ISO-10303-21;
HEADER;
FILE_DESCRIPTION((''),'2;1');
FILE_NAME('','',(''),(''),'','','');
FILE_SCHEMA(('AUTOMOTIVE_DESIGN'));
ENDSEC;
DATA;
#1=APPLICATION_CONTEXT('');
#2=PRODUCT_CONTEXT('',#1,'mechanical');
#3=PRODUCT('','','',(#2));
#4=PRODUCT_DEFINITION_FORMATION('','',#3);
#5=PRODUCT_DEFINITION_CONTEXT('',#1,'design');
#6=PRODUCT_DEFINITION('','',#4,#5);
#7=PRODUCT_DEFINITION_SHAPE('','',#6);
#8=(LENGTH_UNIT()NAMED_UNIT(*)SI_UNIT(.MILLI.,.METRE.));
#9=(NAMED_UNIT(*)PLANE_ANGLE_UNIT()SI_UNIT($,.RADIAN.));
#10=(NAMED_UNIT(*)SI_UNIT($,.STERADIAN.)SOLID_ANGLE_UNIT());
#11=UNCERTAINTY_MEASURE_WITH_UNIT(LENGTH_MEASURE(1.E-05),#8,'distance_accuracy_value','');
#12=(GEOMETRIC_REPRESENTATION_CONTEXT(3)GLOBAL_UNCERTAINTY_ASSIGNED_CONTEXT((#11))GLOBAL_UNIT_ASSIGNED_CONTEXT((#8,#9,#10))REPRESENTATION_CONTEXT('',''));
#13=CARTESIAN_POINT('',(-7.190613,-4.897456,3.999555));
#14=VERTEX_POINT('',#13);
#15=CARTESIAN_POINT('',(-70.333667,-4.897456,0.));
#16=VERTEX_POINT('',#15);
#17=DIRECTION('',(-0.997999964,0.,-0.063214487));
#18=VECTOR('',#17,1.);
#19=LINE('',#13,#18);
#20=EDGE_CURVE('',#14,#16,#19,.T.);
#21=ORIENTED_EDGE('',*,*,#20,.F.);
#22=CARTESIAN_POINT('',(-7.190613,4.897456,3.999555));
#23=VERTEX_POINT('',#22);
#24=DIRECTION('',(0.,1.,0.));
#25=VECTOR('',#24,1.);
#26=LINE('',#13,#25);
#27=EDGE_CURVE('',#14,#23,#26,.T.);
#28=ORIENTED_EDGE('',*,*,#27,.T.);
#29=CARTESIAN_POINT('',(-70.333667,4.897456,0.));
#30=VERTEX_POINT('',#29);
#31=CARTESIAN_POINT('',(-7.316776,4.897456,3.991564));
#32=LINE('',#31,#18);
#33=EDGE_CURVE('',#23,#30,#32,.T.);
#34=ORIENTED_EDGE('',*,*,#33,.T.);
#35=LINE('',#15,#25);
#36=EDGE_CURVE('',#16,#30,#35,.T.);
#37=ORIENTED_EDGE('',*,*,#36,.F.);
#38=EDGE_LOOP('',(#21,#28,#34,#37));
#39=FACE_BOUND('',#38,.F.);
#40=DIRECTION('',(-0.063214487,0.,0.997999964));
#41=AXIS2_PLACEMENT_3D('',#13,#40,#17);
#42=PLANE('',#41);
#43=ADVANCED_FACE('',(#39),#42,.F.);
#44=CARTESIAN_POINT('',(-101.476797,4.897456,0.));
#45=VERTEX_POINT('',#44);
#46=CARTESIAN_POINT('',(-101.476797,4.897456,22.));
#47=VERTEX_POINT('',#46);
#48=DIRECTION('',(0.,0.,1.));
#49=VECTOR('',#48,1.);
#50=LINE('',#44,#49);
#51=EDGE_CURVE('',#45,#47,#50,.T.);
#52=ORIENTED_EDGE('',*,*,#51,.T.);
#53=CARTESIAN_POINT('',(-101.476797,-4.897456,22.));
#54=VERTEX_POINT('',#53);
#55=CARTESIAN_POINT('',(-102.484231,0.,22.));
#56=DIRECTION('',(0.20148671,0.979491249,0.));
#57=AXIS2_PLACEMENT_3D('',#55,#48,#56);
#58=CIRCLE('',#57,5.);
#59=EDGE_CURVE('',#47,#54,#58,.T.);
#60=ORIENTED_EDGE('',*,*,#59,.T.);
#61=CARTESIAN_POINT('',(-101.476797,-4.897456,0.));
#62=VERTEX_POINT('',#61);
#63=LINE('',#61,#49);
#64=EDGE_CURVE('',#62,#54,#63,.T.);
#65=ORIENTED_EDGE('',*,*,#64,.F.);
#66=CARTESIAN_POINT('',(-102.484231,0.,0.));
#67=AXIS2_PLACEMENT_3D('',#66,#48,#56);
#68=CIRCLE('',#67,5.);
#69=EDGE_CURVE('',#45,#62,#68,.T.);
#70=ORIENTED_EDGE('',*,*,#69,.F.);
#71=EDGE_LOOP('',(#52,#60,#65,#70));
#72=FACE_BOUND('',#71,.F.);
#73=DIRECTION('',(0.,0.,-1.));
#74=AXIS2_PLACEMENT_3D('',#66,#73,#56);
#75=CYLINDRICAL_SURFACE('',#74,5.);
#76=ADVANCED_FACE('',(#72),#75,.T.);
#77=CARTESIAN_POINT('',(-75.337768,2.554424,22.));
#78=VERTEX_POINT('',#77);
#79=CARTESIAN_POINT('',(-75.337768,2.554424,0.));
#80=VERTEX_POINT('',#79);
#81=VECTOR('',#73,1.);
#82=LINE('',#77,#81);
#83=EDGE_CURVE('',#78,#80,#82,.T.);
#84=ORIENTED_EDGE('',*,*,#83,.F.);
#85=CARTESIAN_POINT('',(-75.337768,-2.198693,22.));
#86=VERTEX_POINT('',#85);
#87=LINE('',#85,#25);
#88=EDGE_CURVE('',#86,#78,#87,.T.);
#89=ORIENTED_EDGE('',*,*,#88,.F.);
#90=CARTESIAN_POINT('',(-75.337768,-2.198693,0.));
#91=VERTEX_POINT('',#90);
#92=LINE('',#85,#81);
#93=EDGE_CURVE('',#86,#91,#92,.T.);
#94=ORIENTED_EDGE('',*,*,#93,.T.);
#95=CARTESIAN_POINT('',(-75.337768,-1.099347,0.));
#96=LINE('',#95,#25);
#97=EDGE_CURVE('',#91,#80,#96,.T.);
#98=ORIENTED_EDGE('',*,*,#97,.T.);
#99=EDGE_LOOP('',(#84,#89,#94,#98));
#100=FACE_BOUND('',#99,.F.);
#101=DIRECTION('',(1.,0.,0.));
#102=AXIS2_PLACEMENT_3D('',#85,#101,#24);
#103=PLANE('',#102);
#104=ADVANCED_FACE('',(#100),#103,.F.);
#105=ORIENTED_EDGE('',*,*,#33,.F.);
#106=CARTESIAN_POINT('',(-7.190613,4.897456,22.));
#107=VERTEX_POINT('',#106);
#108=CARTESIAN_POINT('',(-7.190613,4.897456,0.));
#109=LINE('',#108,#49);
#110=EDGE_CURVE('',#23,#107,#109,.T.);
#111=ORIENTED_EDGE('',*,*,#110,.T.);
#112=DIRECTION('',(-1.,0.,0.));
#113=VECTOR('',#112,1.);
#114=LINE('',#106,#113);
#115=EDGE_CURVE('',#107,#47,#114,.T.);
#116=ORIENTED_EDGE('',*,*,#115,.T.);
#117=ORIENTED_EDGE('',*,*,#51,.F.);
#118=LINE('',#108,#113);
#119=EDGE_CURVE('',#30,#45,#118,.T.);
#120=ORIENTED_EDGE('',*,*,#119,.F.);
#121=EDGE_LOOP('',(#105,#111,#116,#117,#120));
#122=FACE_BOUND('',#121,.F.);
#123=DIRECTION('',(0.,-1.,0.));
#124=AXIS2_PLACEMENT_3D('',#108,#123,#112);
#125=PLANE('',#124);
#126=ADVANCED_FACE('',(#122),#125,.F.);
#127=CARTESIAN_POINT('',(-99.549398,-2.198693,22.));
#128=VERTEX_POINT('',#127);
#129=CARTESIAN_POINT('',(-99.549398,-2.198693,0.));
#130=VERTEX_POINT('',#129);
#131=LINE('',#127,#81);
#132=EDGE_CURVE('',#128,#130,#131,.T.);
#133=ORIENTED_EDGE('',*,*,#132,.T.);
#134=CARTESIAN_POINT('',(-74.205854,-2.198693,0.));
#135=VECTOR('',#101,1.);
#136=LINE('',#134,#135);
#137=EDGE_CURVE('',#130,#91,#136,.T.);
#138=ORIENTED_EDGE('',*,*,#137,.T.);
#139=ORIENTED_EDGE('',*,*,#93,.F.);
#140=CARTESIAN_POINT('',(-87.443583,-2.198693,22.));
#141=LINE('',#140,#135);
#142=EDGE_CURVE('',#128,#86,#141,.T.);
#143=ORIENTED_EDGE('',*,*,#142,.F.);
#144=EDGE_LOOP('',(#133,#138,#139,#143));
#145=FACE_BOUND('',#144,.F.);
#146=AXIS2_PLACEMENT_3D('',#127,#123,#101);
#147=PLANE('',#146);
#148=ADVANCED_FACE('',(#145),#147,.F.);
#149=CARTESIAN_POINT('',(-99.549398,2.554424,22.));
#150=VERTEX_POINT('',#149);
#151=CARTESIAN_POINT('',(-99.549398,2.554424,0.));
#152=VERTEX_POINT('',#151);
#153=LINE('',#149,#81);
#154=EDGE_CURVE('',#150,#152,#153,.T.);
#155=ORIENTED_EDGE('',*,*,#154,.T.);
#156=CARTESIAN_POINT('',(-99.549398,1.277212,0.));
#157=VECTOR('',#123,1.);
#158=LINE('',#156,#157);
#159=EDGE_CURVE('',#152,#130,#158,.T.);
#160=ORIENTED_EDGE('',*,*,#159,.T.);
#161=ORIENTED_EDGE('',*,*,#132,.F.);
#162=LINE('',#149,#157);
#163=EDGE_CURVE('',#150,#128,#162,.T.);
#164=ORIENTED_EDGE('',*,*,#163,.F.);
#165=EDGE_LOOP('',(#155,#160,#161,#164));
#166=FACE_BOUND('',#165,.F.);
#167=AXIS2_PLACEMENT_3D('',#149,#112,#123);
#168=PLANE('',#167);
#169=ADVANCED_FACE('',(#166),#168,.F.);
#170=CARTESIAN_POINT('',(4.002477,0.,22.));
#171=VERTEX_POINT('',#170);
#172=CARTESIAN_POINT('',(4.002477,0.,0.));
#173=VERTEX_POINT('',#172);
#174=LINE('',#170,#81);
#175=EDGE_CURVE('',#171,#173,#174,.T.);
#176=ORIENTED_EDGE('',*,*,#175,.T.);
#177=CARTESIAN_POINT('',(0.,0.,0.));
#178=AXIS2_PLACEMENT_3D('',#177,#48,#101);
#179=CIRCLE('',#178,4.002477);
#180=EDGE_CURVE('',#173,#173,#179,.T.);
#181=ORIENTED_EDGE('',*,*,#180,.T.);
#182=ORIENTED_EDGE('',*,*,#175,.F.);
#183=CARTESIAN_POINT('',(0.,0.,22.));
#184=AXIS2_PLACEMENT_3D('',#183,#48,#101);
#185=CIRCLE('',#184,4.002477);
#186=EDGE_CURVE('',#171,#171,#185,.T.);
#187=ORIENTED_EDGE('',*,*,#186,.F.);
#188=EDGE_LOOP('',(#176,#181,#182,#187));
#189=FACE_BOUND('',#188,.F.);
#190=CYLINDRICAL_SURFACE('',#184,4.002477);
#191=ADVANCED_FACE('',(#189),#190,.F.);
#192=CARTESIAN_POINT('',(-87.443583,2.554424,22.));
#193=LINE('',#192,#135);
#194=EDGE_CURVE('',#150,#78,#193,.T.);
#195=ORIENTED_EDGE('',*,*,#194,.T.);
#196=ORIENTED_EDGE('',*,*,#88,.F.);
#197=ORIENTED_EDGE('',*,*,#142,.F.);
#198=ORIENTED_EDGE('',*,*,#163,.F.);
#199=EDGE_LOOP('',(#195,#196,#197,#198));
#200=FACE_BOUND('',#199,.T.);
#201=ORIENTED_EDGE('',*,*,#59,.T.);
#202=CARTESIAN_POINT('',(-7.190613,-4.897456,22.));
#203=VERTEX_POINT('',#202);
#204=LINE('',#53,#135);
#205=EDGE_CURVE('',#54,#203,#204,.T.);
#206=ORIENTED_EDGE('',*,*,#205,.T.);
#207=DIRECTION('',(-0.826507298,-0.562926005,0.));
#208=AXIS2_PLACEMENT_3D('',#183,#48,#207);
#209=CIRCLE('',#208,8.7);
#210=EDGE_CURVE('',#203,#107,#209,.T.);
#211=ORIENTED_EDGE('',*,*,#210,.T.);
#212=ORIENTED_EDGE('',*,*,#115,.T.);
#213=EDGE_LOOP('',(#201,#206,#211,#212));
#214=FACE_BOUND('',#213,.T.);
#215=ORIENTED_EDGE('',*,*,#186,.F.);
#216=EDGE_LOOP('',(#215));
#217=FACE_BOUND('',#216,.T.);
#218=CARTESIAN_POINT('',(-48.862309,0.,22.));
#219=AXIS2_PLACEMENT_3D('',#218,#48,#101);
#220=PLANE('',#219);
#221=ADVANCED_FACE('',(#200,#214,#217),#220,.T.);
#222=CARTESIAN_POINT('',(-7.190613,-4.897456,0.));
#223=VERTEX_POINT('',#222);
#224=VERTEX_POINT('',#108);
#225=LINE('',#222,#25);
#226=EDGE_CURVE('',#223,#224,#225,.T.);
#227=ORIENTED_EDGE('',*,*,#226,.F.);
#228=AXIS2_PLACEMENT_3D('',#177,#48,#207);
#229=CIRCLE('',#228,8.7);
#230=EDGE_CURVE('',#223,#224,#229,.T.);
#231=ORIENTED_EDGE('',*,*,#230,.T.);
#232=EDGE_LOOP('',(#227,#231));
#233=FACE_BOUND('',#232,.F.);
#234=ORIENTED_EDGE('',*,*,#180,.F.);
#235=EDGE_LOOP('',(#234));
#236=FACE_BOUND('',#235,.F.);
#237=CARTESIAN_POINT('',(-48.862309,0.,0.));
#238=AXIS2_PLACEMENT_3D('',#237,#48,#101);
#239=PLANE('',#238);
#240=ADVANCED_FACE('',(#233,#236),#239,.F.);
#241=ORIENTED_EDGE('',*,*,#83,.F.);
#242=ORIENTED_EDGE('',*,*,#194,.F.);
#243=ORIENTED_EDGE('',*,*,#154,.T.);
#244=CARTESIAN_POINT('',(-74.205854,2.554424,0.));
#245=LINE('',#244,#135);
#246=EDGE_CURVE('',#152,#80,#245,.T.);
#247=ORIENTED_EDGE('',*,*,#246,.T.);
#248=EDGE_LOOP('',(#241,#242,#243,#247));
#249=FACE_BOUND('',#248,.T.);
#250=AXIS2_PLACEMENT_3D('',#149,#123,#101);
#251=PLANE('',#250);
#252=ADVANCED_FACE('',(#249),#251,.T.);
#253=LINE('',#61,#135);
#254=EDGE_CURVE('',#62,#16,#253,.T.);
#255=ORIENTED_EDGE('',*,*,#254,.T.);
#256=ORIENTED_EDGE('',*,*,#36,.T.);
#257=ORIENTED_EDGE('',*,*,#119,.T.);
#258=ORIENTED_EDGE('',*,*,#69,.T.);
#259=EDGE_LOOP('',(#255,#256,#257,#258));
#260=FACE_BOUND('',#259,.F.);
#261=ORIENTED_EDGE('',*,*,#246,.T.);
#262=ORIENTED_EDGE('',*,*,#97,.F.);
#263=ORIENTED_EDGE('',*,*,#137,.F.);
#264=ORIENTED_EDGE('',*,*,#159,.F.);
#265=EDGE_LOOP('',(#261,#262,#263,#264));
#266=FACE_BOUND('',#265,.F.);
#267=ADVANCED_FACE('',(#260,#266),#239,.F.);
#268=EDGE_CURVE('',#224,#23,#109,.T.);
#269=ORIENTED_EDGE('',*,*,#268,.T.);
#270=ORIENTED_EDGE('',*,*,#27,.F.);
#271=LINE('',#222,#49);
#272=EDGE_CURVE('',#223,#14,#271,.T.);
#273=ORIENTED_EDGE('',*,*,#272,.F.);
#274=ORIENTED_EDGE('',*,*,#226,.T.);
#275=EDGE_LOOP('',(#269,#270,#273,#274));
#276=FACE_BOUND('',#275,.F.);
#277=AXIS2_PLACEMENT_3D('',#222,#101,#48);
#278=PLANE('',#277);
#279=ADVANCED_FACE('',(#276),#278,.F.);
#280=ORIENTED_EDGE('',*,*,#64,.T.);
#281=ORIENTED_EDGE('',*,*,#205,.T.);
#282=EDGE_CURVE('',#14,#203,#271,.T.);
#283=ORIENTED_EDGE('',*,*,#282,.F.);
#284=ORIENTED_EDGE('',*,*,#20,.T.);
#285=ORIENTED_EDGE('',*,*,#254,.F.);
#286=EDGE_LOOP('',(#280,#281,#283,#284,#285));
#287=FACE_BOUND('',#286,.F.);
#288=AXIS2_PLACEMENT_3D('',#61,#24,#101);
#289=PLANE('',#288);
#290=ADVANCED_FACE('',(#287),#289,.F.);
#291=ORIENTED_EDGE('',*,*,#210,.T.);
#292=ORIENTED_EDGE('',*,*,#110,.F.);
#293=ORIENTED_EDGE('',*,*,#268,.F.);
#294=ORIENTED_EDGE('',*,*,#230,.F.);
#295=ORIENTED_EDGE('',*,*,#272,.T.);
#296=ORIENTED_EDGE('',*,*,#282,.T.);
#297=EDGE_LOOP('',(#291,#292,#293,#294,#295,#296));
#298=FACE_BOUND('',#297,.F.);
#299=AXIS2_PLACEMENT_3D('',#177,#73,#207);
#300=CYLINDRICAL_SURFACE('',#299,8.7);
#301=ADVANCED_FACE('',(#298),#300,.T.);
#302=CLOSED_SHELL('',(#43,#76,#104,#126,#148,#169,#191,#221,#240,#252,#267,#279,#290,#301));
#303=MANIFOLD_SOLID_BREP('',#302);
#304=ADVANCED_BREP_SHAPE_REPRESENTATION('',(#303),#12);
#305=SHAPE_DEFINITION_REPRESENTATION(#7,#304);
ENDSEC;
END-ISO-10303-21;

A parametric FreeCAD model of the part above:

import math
import FreeCAD as App
import Part
import Sketcher

doc = App.newDocument("Part")
body = doc.addObject("PartDesign::Body", "Body")

# Sketch on XY plane
sketch1 = body.newObject("Sketcher::SketchObject", "Sketch")
sketch1.AttachmentSupport = (doc.getObject("XY_Plane"), [""])
sketch1.MapMode = "FlatFace"
sketch1.addGeometry([
    Part.LineSegment(App.Vector(-101, -5, 0), App.Vector(-7, -5, 0)),
    Part.ArcOfCircle(Part.Circle(App.Vector(0, 0, 0), App.Vector(0, 0, 1), 9), math.radians(-146), math.radians(146)),
    Part.LineSegment(App.Vector(-7, 5, 0), App.Vector(-101, 5, 0)),
    Part.ArcOfCircle(Part.Circle(App.Vector(-102, 0, 0), App.Vector(0, 0, 1), 5), math.radians(78), math.radians(282)),
], False)
sketch1.addConstraint([
    Sketcher.Constraint("Coincident", 0, 2, 1, 1),
    Sketcher.Constraint("Coincident", 1, 2, 2, 1),
    Sketcher.Constraint("Coincident", 2, 2, 3, 1),
    Sketcher.Constraint("Coincident", 3, 2, 0, 1),
    Sketcher.Constraint("Horizontal", 0),
    Sketcher.Constraint("Horizontal", 2),
    Sketcher.Constraint("Coincident", 1, 3, -1, 1),
    Sketcher.Constraint("Symmetric", 2, 2, 3, 2, -1),
    Sketcher.Constraint("Radius", 3, 5.0),
    Sketcher.Constraint("Radius", 1, 8.7),
    Sketcher.Constraint("DistanceX", 0, 1, 0, 2, 94.286184),
    Sketcher.Constraint("DistanceX", 3, 3, -1, 1, 102.484231),
])
pad1 = body.newObject("PartDesign::Pad", "Pad")
pad1.Profile = sketch1
pad1.Length = 22

# Sketch on XZ plane
sketch2 = body.newObject("Sketcher::SketchObject", "Sketch001")
sketch2.AttachmentSupport = (doc.getObject("XZ_Plane"), [""])
sketch2.MapMode = "FlatFace"
sketch2.AttachmentOffset = App.Placement(App.Vector(0, 0, 4.897456), App.Rotation())
sketch2.addGeometry([
    Part.LineSegment(App.Vector(-7.2, 4, 0), App.Vector(-70.3, 0, 0)),
    Part.LineSegment(App.Vector(-70.3, 0, 0), App.Vector(-7.2, 0, 0)),
    Part.LineSegment(App.Vector(-7.2, 0, 0), App.Vector(-7.2, 4, 0)),
], False)
sketch2.addConstraint([
    Sketcher.Constraint("Coincident", 0, 2, 1, 1),
    Sketcher.Constraint("Coincident", 1, 2, 2, 1),
    Sketcher.Constraint("Coincident", 2, 2, 0, 1),
    Sketcher.Constraint("Horizontal", 1),
    Sketcher.Constraint("Vertical", 2),
    Sketcher.Constraint("PointOnObject", 0, 2, -1),
    Sketcher.Constraint("DistanceX", 1, 1, 1, 2, 63.143054),
    Sketcher.Constraint("DistanceY", 2, 1, 2, 2, 3.999555),
    Sketcher.Constraint("DistanceX", 0, 2, -1, 1, 70.333667),
])
pocket1 = body.newObject("PartDesign::Pocket", "Pocket")
pocket1.Profile = sketch2
pocket1.Type = "ThroughAll"

# Sketch on XY plane
sketch3 = body.newObject("Sketcher::SketchObject", "Sketch002")
sketch3.AttachmentSupport = (doc.getObject("XY_Plane"), [""])
sketch3.MapMode = "FlatFace"
sketch3.AttachmentOffset = App.Placement(App.Vector(0, 0, 22), App.Rotation())
sketch3.addGeometry([
    Part.LineSegment(App.Vector(-99.5, 2.6, 0), App.Vector(-99.5, -2.2, 0)),
    Part.LineSegment(App.Vector(-99.5, -2.2, 0), App.Vector(-75.3, -2.2, 0)),
    Part.LineSegment(App.Vector(-75.3, -2.2, 0), App.Vector(-75.3, 2.6, 0)),
    Part.LineSegment(App.Vector(-75.3, 2.6, 0), App.Vector(-99.5, 2.6, 0)),
], False)
sketch3.addConstraint([
    Sketcher.Constraint("Coincident", 0, 2, 1, 1),
    Sketcher.Constraint("Coincident", 1, 2, 2, 1),
    Sketcher.Constraint("Coincident", 2, 2, 3, 1),
    Sketcher.Constraint("Coincident", 3, 2, 0, 1),
    Sketcher.Constraint("Vertical", 0),
    Sketcher.Constraint("Horizontal", 1),
    Sketcher.Constraint("Vertical", 2),
    Sketcher.Constraint("Horizontal", 3),
    Sketcher.Constraint("DistanceX", 1, 1, 1, 2, 24.21163),
    Sketcher.Constraint("DistanceY", 0, 2, 0, 1, 4.753118),
    Sketcher.Constraint("DistanceX", 0, 2, -1, 1, 99.549398),
    Sketcher.Constraint("DistanceY", 0, 2, -1, 1, 2.198693),
])
pocket2 = body.newObject("PartDesign::Pocket", "Pocket001")
pocket2.Profile = sketch3
pocket2.Type = "ThroughAll"

# Sketch on XY plane
sketch4 = body.newObject("Sketcher::SketchObject", "Sketch003")
sketch4.AttachmentSupport = (doc.getObject("XY_Plane"), [""])
sketch4.MapMode = "FlatFace"
sketch4.AttachmentOffset = App.Placement(App.Vector(0, 0, 22), App.Rotation())
sketch4.addGeometry(Part.Circle(App.Vector(0, 0, 0), App.Vector(0, 0, 1), 4), False)
sketch4.addConstraint([
    Sketcher.Constraint("Coincident", 0, 3, -1, 1),
    Sketcher.Constraint("Diameter", 0, 8.004954),
])
pocket3 = body.newObject("PartDesign::Pocket", "Pocket002")
pocket3.Profile = sketch4
pocket3.Type = "ThroughAll"

doc.recompute()
